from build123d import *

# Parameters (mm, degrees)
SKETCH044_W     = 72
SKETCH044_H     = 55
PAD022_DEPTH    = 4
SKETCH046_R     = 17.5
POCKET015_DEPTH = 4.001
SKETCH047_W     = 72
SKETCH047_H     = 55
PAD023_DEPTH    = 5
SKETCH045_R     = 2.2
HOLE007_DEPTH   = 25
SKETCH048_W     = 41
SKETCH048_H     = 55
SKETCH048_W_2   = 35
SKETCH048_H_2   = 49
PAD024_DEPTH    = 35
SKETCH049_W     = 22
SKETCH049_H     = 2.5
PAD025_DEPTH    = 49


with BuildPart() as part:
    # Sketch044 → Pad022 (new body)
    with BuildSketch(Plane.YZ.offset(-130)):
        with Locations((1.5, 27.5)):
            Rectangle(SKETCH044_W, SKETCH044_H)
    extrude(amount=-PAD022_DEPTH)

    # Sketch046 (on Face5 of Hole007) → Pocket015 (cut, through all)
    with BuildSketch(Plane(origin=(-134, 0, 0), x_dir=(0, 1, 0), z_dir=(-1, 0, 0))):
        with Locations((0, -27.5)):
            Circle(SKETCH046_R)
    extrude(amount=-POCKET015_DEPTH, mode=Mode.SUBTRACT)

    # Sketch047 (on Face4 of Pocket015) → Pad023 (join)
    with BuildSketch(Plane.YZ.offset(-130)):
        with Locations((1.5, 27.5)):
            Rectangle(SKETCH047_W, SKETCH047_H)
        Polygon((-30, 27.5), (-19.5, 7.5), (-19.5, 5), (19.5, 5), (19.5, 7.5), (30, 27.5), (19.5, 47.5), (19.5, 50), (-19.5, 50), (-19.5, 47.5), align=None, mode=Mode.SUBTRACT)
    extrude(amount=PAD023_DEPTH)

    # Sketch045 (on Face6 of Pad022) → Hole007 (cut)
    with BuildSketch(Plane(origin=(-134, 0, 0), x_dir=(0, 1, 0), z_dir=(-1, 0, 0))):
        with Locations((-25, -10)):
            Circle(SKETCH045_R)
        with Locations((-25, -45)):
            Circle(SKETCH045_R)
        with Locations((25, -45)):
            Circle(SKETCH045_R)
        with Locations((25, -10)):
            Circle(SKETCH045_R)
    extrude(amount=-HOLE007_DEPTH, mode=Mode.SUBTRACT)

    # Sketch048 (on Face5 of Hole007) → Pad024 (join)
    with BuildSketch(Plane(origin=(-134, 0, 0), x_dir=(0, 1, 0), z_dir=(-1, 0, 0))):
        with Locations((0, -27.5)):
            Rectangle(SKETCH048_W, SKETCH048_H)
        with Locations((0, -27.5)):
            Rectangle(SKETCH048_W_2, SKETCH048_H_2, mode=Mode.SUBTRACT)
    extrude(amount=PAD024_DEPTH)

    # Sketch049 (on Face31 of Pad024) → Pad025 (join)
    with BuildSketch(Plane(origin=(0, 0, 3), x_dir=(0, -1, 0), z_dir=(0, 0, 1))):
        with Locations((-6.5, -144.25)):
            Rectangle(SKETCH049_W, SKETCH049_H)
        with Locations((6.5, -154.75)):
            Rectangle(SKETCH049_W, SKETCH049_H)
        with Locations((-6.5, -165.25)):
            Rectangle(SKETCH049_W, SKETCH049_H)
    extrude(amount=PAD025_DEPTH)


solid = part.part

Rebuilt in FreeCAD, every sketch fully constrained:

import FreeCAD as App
import Part
import Sketcher
from FreeCAD import Vector
Q = App.Units.Quantity


def add_polygon(sketch, points):
    """Adds a closed chain of lines whose ends are joined by coincident constraints."""
    first, n = sketch.GeometryCount, len(points)
    for a, b in zip(points, points[1:] + points[:1]):
        sketch.addGeometry(Part.LineSegment(App.Vector(*a, 0), App.Vector(*b, 0)), False)
    for i in range(n):
        sketch.addConstraint(Sketcher.Constraint("Coincident", first + i, 2, first + (i + 1) % n, 1))

doc = App.newDocument("Part")
params = doc.addObject("Spreadsheet::Sheet", "Params")
for row, (alias, value) in enumerate([
    ("sketch1_width", "72 mm"),
    ("sketch1_height", "55 mm"),
    ("pad1_length", "4 mm"),
    ("sketch2_diameter", "35 mm"),
    ("sketch3_width", "72 mm"),
    ("sketch3_width2", "39 mm"),
    ("sketch3_height", "55 mm"),
    ("sketch3_height2", "2.5 mm"),
    ("pad2_length", "5 mm"),
    ("sketch4_diameter", "4.4 mm"),
    ("pocket2_length", "25 mm"),
    ("sketch5_width", "41 mm"),
    ("sketch5_width2", "35 mm"),
    ("sketch5_height", "55 mm"),
    ("sketch5_height2", "49 mm"),
    ("pad3_length", "35 mm"),
    ("sketch6_height", "22 mm"),
    ("sketch6_width", "2.5 mm"),
    ("pad4_length", "49 mm"),
], start=1):
    params.set(f"A{row}", alias)
    params.set(f"B{row}", "=" + value)
    params.setAlias(f"B{row}", alias)

body = doc.addObject("PartDesign::Body", "Body")

# Sketch on YZ plane
sketch1 = body.newObject("Sketcher::SketchObject", "Sketch")
sketch1.AttachmentSupport = (doc.getObject("YZ_Plane"), [""])
sketch1.MapMode = "FlatFace"
sketch1.AttachmentOffset = App.Placement(Vector(0, 0, -130), App.Rotation())
add_polygon(sketch1, [(-34, 55), (-34, 0), (38, 0), (38, 55)])  # lines 0-3
sketch1.addConstraint(Sketcher.Constraint("Vertical", 0))
sketch1.addConstraint(Sketcher.Constraint("Horizontal", 1))
sketch1.addConstraint(Sketcher.Constraint("Vertical", 2))
sketch1.addConstraint(Sketcher.Constraint("Horizontal", 3))
sketch1.addConstraint(Sketcher.Constraint("PointOnObject", 0, 2, -1))
sketch1.addConstraint(Sketcher.Constraint("DistanceX", 1, 1, 1, 2, Q("72 mm")))
sketch1.addConstraint(Sketcher.Constraint("DistanceY", 0, 2, 0, 1, Q("55 mm")))
sketch1.addConstraint(Sketcher.Constraint("DistanceX", 0, 2, -1, 1, Q("34.5 mm")))
sketch1.setExpression("Constraints[9]", "Params.sketch1_width")
sketch1.setExpression("Constraints[10]", "Params.sketch1_height")
pad1 = body.newObject("PartDesign::Pad", "Pad")
pad1.Profile = sketch1
pad1.setExpression("Length", "Params.pad1_length")
pad1.Reversed = True

# Sketch on YZ plane
sketch2 = body.newObject("Sketcher::SketchObject", "Sketch001")
sketch2.AttachmentSupport = (doc.getObject("YZ_Plane"), [""])
sketch2.MapMode = "FlatFace"
sketch2.AttachmentOffset = App.Placement(Vector(0, 0, -134), App.Rotation())
sketch2.addGeometry(Part.Circle(Vector(0, 28, 0), Vector(0, 0, 1), 18), False)
sketch2.addConstraint(Sketcher.Constraint("PointOnObject", 0, 3, -2))
sketch2.addConstraint(Sketcher.Constraint("Diameter", 0, Q("35 mm")))
sketch2.addConstraint(Sketcher.Constraint("DistanceY", -1, 1, 0, 3, Q("27.5 mm")))
sketch2.setExpression("Constraints[1]", "Params.sketch2_diameter")
pocket1 = body.newObject("PartDesign::Pocket", "Pocket")
pocket1.Profile = sketch2
pocket1.Type = "ThroughAll"
pocket1.Reversed = True

# Sketch on YZ plane
sketch3 = body.newObject("Sketcher::SketchObject", "Sketch002")
sketch3.AttachmentSupport = (doc.getObject("YZ_Plane"), [""])
sketch3.MapMode = "FlatFace"
sketch3.AttachmentOffset = App.Placement(Vector(0, 0, -130), App.Rotation())
add_polygon(sketch3, [(-34.5, 55), (-34.5, 0), (37.5, 0), (37.5, 55)])  # lines 0-3
add_polygon(sketch3, [(-19.5, 7.5), (-30, 27.5), (-19.5, 47.5), (-19.5, 50), (19.5, 50), (19.5, 47.5), (30, 27.5), (19.5, 7.5), (19.5, 5), (-19.5, 5)])  # lines 4-13
sketch3.addConstraint(Sketcher.Constraint("Vertical", 0))
sketch3.addConstraint(Sketcher.Constraint("Horizontal", 1))
sketch3.addConstraint(Sketcher.Constraint("Vertical", 2))
sketch3.addConstraint(Sketcher.Constraint("Horizontal", 3))
sketch3.addConstraint(Sketcher.Constraint("Vertical", 6))
sketch3.addConstraint(Sketcher.Constraint("Horizontal", 7))
sketch3.addConstraint(Sketcher.Constraint("Vertical", 8))
sketch3.addConstraint(Sketcher.Constraint("Vertical", 11))
sketch3.addConstraint(Sketcher.Constraint("Horizontal", 12))
sketch3.addConstraint(Sketcher.Constraint("Vertical", 13))
sketch3.addConstraint(Sketcher.Constraint("Symmetric", 5, 2, 8, 2, -2))
sketch3.addConstraint(Sketcher.Constraint("Symmetric", 4, 2, 9, 2, -2))
sketch3.addConstraint(Sketcher.Constraint("Symmetric", 10, 2, 13, 2, -2))
sketch3.addConstraint(Sketcher.Constraint("PointOnObject", 0, 2, -1))
sketch3.addConstraint(Sketcher.Constraint("Parallel", 4, 9))
sketch3.addConstraint(Sketcher.Constraint("Vertical", 8, 2, 10, 2))
sketch3.addConstraint(Sketcher.Constraint("Equal", 8, 11))
sketch3.addConstraint(Sketcher.Constraint("DistanceX", 1, 1, 1, 2, Q("72 mm")))
sketch3.addConstraint(Sketcher.Constraint("DistanceX", 7, 1, 7, 2, Q("39 mm")))
sketch3.addConstraint(Sketcher.Constraint("DistanceY", 0, 2, 0, 1, Q("55 mm")))
sketch3.addConstraint(Sketcher.Constraint("DistanceY", 6, 1, 6, 2, Q("2.5 mm")))
sketch3.addConstraint(Sketcher.Constraint("DistanceX", 4, 2, -1, 1, Q("30 mm")))
sketch3.addConstraint(Sketcher.Constraint("DistanceY", -1, 1, 6, 2, Q("50 mm")))
sketch3.addConstraint(Sketcher.Constraint("DistanceY", -1, 1, 11, 2, Q("5 mm")))
sketch3.addConstraint(Sketcher.Constraint("DistanceX", 3, 2, 5, 2, Q("15 mm")))
sketch3.setExpression("Constraints[31]", "Params.sketch3_width")
sketch3.setExpression("Constraints[32]", "Params.sketch3_width2")
sketch3.setExpression("Constraints[33]", "Params.sketch3_height")
sketch3.setExpression("Constraints[34]", "Params.sketch3_height2")
pad2 = body.newObject("PartDesign::Pad", "Pad001")
pad2.Profile = sketch3
pad2.setExpression("Length", "Params.pad2_length")

# Sketch on YZ plane
sketch4 = body.newObject("Sketcher::SketchObject", "Sketch003")
sketch4.AttachmentSupport = (doc.getObject("YZ_Plane"), [""])
sketch4.MapMode = "FlatFace"
sketch4.AttachmentOffset = App.Placement(Vector(0, 0, -134), App.Rotation())
sketch4.addGeometry(Part.Circle(Vector(-25, 10, 0), Vector(0, 0, 1), 2.2), False)
sketch4.addGeometry(Part.Circle(Vector(-25, 45, 0), Vector(0, 0, 1), 2.2), False)
sketch4.addGeometry(Part.Circle(Vector(25, 45, 0), Vector(0, 0, 1), 2.2), False)
sketch4.addGeometry(Part.Circle(Vector(25, 10, 0), Vector(0, 0, 1), 2.2), False)
sketch4.addConstraint(Sketcher.Constraint("Equal", 0, 1))
sketch4.addConstraint(Sketcher.Constraint("Equal", 1, 2))
sketch4.addConstraint(Sketcher.Constraint("Equal", 2, 3))
sketch4.addConstraint(Sketcher.Constraint("Symmetric", 1, 3, 2, 3, -2))
sketch4.addConstraint(Sketcher.Constraint("Symmetric", 0, 3, 3, 3, -2))
sketch4.addConstraint(Sketcher.Constraint("Vertical", 0, 3, 1, 3))
sketch4.addConstraint(Sketcher.Constraint("Diameter", 0, Q("4.4 mm")))
sketch4.addConstraint(Sketcher.Constraint("DistanceX", 0, 3, -1, 1, Q("25 mm")))
sketch4.addConstraint(Sketcher.Constraint("DistanceY", -1, 1, 0, 3, Q("10 mm")))
sketch4.addConstraint(Sketcher.Constraint("DistanceY", -1, 1, 1, 3, Q("45 mm")))
sketch4.setExpression("Constraints[6]", "Params.sketch4_diameter")
pocket2 = body.newObject("PartDesign::Pocket", "Pocket001")
pocket2.Profile = sketch4
pocket2.setExpression("Length", "Params.pocket2_length")
pocket2.Reversed = True

# Sketch on YZ plane
sketch5 = body.newObject("Sketcher::SketchObject", "Sketch004")
sketch5.AttachmentSupport = (doc.getObject("YZ_Plane"), [""])
sketch5.MapMode = "FlatFace"
sketch5.AttachmentOffset = App.Placement(Vector(0, 0, -134), App.Rotation())
add_polygon(sketch5, [(-20, 0), (-20, 55), (20, 55), (20, 0)])  # lines 0-3
add_polygon(sketch5, [(18, 52), (-18, 52), (-18, 3), (18, 3)])  # lines 4-7
sketch5.addConstraint(Sketcher.Constraint("Vertical", 0))
sketch5.addConstraint(Sketcher.Constraint("Horizontal", 1))
sketch5.addConstraint(Sketcher.Constraint("Vertical", 2))
sketch5.addConstraint(Sketcher.Constraint("Horizontal", 3))
sketch5.addConstraint(Sketcher.Constraint("Horizontal", 4))
sketch5.addConstraint(Sketcher.Constraint("Vertical", 5))
sketch5.addConstraint(Sketcher.Constraint("Horizontal", 6))
sketch5.addConstraint(Sketcher.Constraint("Vertical", 7))
sketch5.addConstraint(Sketcher.Constraint("Symmetric", 2, 2, 3, 2, -1, 1))
sketch5.addConstraint(Sketcher.Constraint("DistanceX", 1, 1, 1, 2, Q("41 mm")))
sketch5.addConstraint(Sketcher.Constraint("DistanceX", 4, 2, 4, 1, Q("35 mm")))
sketch5.addConstraint(Sketcher.Constraint("DistanceY", 0, 1, 0, 2, Q("55 mm")))
sketch5.addConstraint(Sketcher.Constraint("DistanceY", 5, 2, 5, 1, Q("49 mm")))
sketch5.addConstraint(Sketcher.Constraint("DistanceY", -1, 1, 4, 2, Q("52 mm")))
sketch5.addConstraint(Sketcher.Constraint("DistanceX", 0, 2, 4, 2, Q("3 mm")))
sketch5.setExpression("Constraints[17]", "Params.sketch5_width")
sketch5.setExpression("Constraints[18]", "Params.sketch5_width2")
sketch5.setExpression("Constraints[19]", "Params.sketch5_height")
sketch5.setExpression("Constraints[20]", "Params.sketch5_height2")
pad3 = body.newObject("PartDesign::Pad", "Pad002")
pad3.Profile = sketch5
pad3.setExpression("Length", "Params.pad3_length")
pad3.Reversed = True

# Sketch on XY plane
sketch6 = body.newObject("Sketcher::SketchObject", "Sketch005")
sketch6.AttachmentSupport = (doc.getObject("XY_Plane"), [""])
sketch6.MapMode = "FlatFace"
sketch6.AttachmentOffset = App.Placement(Vector(0, 0, 3), App.Rotation())
add_polygon(sketch6, [(-143, 17.5), (-145.5, 17.5), (-145.5, -4.5), (-143, -4.5)])  # lines 0-3
add_polygon(sketch6, [(-153.5, 4.5), (-156, 4.5), (-156, -17.5), (-153.5, -17.5)])  # lines 4-7
add_polygon(sketch6, [(-164, 17.5), (-166.5, 17.5), (-166.5, -4.5), (-164, -4.5)])  # lines 8-11
sketch6.addConstraint(Sketcher.Constraint("Horizontal", 0))
sketch6.addConstraint(Sketcher.Constraint("Vertical", 1))
sketch6.addConstraint(Sketcher.Constraint("Horizontal", 2))
sketch6.addConstraint(Sketcher.Constraint("Vertical", 3))
sketch6.addConstraint(Sketcher.Constraint("Horizontal", 4))
sketch6.addConstraint(Sketcher.Constraint("Vertical", 5))
sketch6.addConstraint(Sketcher.Constraint("Horizontal", 6))
sketch6.addConstraint(Sketcher.Constraint("Vertical", 7))
sketch6.addConstraint(Sketcher.Constraint("Horizontal", 8))
sketch6.addConstraint(Sketcher.Constraint("Vertical", 9))
sketch6.addConstraint(Sketcher.Constraint("Horizontal", 10))
sketch6.addConstraint(Sketcher.Constraint("Vertical", 11))
sketch6.addConstraint(Sketcher.Constraint("Horizontal", 3, 2, 8, 2))
sketch6.addConstraint(Sketcher.Constraint("Horizontal", 2, 2, 9, 2))
sketch6.addConstraint(Sketcher.Constraint("Equal", 2, 4))
sketch6.addConstraint(Sketcher.Constraint("Equal", 6, 8))
sketch6.addConstraint(Sketcher.Constraint("Equal", 3, 5))
sketch6.addConstraint(Sketcher.Constraint("DistanceY", 1, 2, 1, 1, Q("22 mm")))
sketch6.addConstraint(Sketcher.Constraint("DistanceX", 0, 2, 0, 1, Q("2.5 mm")))
sketch6.addConstraint(Sketcher.Constraint("DistanceX", 2, 2, -1, 1, Q("143 mm")))
sketch6.addConstraint(Sketcher.Constraint("DistanceX", 4, 2, -1, 1, Q("156 mm")))
sketch6.addConstraint(Sketcher.Constraint("DistanceX", 10, 2, -1, 1, Q("164 mm")))
sketch6.addConstraint(Sketcher.Constraint("DistanceY", 1, 2, 4, 2, Q("9 mm")))
sketch6.addConstraint(Sketcher.Constraint("DistanceY", -1, 1, 0, 2, Q("17.5 mm")))
sketch6.setExpression("Constraints[29]", "Params.sketch6_height")
sketch6.setExpression("Constraints[30]", "Params.sketch6_width")
pad4 = body.newObject("PartDesign::Pad", "Pad003")
pad4.Profile = sketch6
pad4.setExpression("Length", "Params.pad4_length")

doc.recompute()
